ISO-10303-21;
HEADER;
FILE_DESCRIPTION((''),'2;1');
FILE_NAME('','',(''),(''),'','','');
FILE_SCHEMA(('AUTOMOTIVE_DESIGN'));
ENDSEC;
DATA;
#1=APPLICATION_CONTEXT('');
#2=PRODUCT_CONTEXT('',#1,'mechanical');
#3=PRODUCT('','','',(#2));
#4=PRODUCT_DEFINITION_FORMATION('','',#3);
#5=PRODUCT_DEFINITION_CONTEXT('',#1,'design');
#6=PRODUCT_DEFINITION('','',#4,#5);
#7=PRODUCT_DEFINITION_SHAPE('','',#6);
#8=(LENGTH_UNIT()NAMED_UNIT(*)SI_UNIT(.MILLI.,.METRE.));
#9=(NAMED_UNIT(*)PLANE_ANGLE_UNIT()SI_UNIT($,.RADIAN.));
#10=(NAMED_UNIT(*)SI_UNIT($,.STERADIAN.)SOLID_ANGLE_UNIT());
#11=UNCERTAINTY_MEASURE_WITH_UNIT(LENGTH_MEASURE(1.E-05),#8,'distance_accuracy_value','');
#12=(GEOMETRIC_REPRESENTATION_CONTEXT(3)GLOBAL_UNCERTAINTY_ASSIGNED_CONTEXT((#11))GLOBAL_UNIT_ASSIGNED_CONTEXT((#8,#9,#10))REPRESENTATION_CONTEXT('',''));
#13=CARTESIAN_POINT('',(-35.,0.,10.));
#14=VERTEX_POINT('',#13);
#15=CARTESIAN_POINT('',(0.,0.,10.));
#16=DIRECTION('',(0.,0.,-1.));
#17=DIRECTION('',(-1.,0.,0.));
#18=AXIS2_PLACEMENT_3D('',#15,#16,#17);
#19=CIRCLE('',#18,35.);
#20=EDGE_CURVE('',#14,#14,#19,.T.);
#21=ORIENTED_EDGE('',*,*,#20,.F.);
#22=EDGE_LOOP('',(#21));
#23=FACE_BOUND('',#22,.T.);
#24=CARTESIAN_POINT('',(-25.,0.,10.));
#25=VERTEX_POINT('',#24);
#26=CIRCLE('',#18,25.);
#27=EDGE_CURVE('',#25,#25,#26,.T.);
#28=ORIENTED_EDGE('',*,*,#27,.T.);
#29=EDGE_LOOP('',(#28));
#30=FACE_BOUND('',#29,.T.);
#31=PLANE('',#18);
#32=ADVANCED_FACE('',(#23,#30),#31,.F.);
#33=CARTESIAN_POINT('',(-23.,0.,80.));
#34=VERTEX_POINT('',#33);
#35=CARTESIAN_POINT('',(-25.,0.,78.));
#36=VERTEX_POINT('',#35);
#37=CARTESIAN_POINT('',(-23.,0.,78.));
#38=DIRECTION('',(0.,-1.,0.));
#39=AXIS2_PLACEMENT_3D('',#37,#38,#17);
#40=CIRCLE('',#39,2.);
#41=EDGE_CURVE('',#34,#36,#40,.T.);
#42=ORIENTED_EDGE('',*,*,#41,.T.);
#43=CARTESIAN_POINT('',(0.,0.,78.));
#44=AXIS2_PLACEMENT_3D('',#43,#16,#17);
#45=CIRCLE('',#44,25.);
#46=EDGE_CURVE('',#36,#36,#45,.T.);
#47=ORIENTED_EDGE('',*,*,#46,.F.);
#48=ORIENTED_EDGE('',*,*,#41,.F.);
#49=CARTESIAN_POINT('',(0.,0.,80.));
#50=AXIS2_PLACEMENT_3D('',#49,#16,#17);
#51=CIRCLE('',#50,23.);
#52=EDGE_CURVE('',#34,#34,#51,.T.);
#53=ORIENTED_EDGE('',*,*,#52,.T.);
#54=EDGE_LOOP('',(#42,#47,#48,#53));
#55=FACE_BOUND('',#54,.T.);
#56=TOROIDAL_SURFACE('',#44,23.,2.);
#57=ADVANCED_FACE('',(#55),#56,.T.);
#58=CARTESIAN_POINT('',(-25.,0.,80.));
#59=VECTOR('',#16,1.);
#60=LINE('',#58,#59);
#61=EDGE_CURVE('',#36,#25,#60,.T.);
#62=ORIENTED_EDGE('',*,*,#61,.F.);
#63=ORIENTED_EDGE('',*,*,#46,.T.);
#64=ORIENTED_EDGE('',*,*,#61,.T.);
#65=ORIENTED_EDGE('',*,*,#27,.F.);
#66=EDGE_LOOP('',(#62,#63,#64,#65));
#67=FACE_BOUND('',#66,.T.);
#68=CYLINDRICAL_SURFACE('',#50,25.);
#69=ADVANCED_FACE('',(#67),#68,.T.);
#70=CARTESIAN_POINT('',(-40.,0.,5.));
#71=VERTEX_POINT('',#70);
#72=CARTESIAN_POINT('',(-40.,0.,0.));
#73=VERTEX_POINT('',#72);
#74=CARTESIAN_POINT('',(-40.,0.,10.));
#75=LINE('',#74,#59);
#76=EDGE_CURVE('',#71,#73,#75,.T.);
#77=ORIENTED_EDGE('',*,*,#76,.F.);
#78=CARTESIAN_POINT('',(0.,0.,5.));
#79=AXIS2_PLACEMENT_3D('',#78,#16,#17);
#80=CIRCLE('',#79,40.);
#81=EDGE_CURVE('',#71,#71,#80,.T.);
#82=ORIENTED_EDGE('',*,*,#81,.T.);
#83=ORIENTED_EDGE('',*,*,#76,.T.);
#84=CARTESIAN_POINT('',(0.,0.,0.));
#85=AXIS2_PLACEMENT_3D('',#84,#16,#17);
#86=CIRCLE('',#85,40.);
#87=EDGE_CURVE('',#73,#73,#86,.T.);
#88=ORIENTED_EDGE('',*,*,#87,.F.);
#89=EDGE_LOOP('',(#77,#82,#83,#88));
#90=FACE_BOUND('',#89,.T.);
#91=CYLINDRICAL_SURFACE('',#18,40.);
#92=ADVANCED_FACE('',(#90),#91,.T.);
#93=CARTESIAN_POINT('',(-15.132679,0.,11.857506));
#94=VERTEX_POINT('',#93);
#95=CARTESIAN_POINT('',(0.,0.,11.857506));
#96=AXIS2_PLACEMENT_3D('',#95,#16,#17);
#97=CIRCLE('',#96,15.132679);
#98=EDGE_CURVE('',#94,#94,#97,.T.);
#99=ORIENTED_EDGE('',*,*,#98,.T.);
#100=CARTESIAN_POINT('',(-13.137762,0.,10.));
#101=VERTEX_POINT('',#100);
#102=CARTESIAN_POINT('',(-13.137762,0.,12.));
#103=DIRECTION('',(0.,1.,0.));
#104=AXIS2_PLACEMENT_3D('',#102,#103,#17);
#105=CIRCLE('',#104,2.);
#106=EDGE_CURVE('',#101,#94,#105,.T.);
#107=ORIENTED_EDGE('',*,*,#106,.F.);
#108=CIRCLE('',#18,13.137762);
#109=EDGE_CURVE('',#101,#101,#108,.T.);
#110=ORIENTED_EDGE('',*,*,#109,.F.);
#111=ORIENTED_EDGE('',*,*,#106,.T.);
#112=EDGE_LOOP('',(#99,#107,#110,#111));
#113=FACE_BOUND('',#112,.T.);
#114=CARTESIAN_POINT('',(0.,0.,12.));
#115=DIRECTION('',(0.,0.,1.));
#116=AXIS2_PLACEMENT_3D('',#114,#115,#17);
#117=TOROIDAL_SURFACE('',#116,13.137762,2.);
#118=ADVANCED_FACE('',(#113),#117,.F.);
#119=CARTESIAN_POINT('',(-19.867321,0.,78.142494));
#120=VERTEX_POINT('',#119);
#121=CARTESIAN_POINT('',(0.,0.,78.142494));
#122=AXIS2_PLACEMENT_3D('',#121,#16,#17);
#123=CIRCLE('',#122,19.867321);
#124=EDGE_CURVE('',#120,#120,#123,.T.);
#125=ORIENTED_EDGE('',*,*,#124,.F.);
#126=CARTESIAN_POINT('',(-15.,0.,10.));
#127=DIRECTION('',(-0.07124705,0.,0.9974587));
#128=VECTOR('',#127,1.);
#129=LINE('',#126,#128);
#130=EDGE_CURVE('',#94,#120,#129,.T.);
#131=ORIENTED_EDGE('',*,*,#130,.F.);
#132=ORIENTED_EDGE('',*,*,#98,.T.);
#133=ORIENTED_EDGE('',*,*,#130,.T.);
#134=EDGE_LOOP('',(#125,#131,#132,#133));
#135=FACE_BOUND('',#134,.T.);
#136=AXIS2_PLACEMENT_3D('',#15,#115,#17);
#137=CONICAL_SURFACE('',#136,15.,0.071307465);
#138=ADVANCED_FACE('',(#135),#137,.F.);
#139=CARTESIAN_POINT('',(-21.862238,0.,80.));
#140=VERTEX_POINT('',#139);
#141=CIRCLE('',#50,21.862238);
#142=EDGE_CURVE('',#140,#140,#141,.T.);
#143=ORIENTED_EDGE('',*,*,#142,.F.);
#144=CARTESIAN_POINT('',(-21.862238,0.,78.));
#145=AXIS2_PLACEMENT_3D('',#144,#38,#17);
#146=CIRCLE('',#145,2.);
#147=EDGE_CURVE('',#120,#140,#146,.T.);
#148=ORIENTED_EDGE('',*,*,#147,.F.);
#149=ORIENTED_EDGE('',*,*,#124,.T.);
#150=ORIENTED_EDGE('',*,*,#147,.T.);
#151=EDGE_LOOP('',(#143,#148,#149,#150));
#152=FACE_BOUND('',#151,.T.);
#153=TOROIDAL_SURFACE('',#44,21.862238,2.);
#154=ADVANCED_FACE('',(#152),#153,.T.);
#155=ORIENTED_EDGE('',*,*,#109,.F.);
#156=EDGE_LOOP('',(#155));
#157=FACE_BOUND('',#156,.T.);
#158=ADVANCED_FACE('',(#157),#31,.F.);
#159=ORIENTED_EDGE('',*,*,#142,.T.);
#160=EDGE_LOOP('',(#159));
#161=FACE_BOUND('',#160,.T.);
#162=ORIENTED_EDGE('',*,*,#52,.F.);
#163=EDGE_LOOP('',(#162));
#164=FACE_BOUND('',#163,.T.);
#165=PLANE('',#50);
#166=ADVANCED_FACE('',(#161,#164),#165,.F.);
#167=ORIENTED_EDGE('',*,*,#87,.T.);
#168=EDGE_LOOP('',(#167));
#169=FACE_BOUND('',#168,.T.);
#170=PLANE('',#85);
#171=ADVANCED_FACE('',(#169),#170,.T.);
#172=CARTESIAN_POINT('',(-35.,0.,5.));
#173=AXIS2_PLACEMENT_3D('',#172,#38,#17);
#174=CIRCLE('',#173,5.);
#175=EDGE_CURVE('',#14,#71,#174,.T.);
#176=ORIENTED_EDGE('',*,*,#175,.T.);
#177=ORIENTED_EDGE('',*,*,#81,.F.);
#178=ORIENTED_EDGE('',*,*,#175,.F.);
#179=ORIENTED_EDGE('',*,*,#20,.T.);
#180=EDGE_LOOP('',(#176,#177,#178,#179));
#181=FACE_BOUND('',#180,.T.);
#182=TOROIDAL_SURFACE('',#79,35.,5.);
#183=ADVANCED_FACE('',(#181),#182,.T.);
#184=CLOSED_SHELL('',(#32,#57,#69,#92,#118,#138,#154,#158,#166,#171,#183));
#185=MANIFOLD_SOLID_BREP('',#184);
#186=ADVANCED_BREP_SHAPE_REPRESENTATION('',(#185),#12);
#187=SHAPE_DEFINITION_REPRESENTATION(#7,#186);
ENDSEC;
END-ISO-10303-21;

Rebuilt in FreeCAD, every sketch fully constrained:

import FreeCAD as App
import Part
import Sketcher
Q = App.Units.Quantity


def edges_at(feature, points):
    """Names of the edges that pass closest to the given points."""
    edges = feature.Shape.Edges
    near = lambda p: min(range(len(edges)), key=lambda i: edges[i].distToShape(Part.Vertex(*p))[0])
    return sorted({f"Edge{near(p) + 1}" for p in points})

doc = App.newDocument("Part")
params = doc.addObject("Spreadsheet::Sheet", "Params")
for row, (alias, value) in enumerate([
    ("sketch1_width", "40 mm"),
    ("sketch1_width2", "15 mm"),
    ("sketch1_width3", "5 mm"),
    ("sketch1_height", "10 mm"),
    ("sketch1_height2", "70 mm"),
    ("revolution_angle", "360 deg"),
    ("fillet_radius", "2 mm"),
    ("fillet2_radius", "5 mm"),
], start=1):
    params.set(f"A{row}", alias)
    params.set(f"B{row}", "=" + value)
    params.setAlias(f"B{row}", alias)

body = doc.addObject("PartDesign::Body", "Body")

sketch1 = doc.addObject("Sketcher::SketchObject", "Sketch")
body.addObject(sketch1)
sketch1.AttachmentSupport = (doc.XZ_Plane, [""])
sketch1.MapMode = "FlatFace"
sketch1.addGeometry(Part.LineSegment(App.Vector(-40, 0, 0), App.Vector(0, 0, 0)), False)
sketch1.addGeometry(Part.LineSegment(App.Vector(0, 0, 0), App.Vector(0, 10, 0)), False)
sketch1.addGeometry(Part.LineSegment(App.Vector(0, 10, 0), App.Vector(-15, 10, 0)), False)
sketch1.addGeometry(Part.LineSegment(App.Vector(-15, 10, 0), App.Vector(-20, 80, 0)), False)
sketch1.addGeometry(Part.LineSegment(App.Vector(-20, 80, 0), App.Vector(-25, 80, 0)), False)
sketch1.addGeometry(Part.LineSegment(App.Vector(-25, 80, 0), App.Vector(-25, 10, 0)), False)
sketch1.addGeometry(Part.LineSegment(App.Vector(-25, 10, 0), App.Vector(-40, 10, 0)), False)
sketch1.addGeometry(Part.LineSegment(App.Vector(-40, 10, 0), App.Vector(-40, 0, 0)), False)
sketch1.addConstraint(Sketcher.Constraint("Coincident", 0, 2, 1, 1))
sketch1.addConstraint(Sketcher.Constraint("Coincident", 1, 2, 2, 1))
sketch1.addConstraint(Sketcher.Constraint("Coincident", 2, 2, 3, 1))
sketch1.addConstraint(Sketcher.Constraint("Coincident", 3, 2, 4, 1))
sketch1.addConstraint(Sketcher.Constraint("Coincident", 4, 2, 5, 1))
sketch1.addConstraint(Sketcher.Constraint("Coincident", 5, 2, 6, 1))
sketch1.addConstraint(Sketcher.Constraint("Coincident", 6, 2, 7, 1))
sketch1.addConstraint(Sketcher.Constraint("Coincident", 7, 2, 0, 1))
sketch1.addConstraint(Sketcher.Constraint("Horizontal", 0))
sketch1.addConstraint(Sketcher.Constraint("Vertical", 1))
sketch1.addConstraint(Sketcher.Constraint("Horizontal", 2))
sketch1.addConstraint(Sketcher.Constraint("Horizontal", 4))
sketch1.addConstraint(Sketcher.Constraint("Vertical", 5))
sketch1.addConstraint(Sketcher.Constraint("Horizontal", 6))
sketch1.addConstraint(Sketcher.Constraint("Vertical", 7))
sketch1.addConstraint(Sketcher.Constraint("Coincident", 0, 2, -1, 1))
sketch1.addConstraint(Sketcher.Constraint("Horizontal", 2, 2, 5, 2))
sketch1.addConstraint(Sketcher.Constraint("Equal", 2, 6))
sketch1.addConstraint(Sketcher.Constraint("DistanceX", 0, 1, 0, 2, Q("40 mm")))
sketch1.addConstraint(Sketcher.Constraint("DistanceX", 2, 2, 2, 1, Q("15 mm")))
sketch1.addConstraint(Sketcher.Constraint("DistanceX", 4, 2, 4, 1, Q("5 mm")))
sketch1.addConstraint(Sketcher.Constraint("DistanceY", 1, 1, 1, 2, Q("10 mm")))
sketch1.addConstraint(Sketcher.Constraint("DistanceY", 5, 2, 5, 1, Q("70 mm")))
sketch1.setExpression("Constraints[18]", "Params.sketch1_width")
sketch1.setExpression("Constraints[19]", "Params.sketch1_width2")
sketch1.setExpression("Constraints[20]", "Params.sketch1_width3")
sketch1.setExpression("Constraints[21]", "Params.sketch1_height")
sketch1.setExpression("Constraints[22]", "Params.sketch1_height2")
revolution = doc.addObject("PartDesign::Revolution", "Revolution")
body.addObject(revolution)
revolution.Profile = sketch1
revolution.ReferenceAxis = (sketch1, ["V_Axis"])
revolution.setExpression("Angle", "Params.revolution_angle")
doc.recompute()

fillet = doc.addObject("PartDesign::Fillet", "Fillet")
body.addObject(fillet)
fillet.Base = (revolution, edges_at(revolution, [(15, 0, 10), (20, 0, 80), (25, 0, 80)]))
fillet.setExpression("Radius", "Params.fillet_radius")
doc.recompute()

fillet2 = doc.addObject("PartDesign::Fillet", "Fillet001")
body.addObject(fillet2)
fillet2.Base = (fillet, edges_at(fillet, [(40, 0, 10)]))
fillet2.setExpression("Radius", "Params.fillet2_radius")

doc.recompute()
